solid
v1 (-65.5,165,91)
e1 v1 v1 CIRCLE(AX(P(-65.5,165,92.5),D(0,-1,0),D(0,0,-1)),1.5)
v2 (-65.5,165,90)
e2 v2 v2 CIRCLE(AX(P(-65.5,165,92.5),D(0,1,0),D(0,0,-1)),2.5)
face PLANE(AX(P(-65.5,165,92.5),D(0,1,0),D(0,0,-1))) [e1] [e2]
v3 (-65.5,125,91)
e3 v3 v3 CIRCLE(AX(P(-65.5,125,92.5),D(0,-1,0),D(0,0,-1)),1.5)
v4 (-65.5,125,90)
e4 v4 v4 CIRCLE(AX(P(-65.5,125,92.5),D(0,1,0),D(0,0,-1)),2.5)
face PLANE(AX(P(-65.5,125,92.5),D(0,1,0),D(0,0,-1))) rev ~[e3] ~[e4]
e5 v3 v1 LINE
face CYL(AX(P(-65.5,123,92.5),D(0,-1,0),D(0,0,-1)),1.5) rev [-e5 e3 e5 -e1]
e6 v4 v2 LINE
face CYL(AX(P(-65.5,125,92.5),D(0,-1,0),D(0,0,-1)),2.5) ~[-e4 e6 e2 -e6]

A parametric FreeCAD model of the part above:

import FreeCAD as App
import Part
import Sketcher
from FreeCAD import Vector

doc = App.newDocument("Part")
body = doc.addObject("PartDesign::Body", "Body")

sketch1 = body.newObject("Sketcher::SketchObject", "Sketch")
sketch1.AttachmentSupport = (doc.getObject("XY_Plane"), [""])
sketch1.MapMode = "FlatFace"
sketch1.addGeometry(Part.Circle(Vector(0, 0, 0), Vector(0, 0, 1), 1.5), False)
sketch1.addConstraint(Sketcher.Constraint("Coincident", 0, 3, -1, 1))
sketch1.addConstraint(Sketcher.Constraint("Diameter", 0, 3.0))
pad1 = body.newObject("PartDesign::Pad", "Pad")
pad1.Profile = sketch1
pad1.Length = 44
body2 = doc.addObject("PartDesign::Body", "Body001")
doc.recompute()

body.Placement = App.Placement(Vector(0, 0, 0), App.Rotation(Vector(0, 1, 0), 90))
boolean = body2.newObject("PartDesign::Boolean", "Boolean")
boolean.Type = "Fuse"
boolean.addObjects([body])
body3 = doc.addObject("PartDesign::Body", "Body002")
doc.recompute()

body2.Placement = App.Placement(Vector(-2, 0, 0), App.Rotation(Vector(0, 0, 1), 0))
boolean2 = body3.newObject("PartDesign::Boolean", "Boolean001")
boolean2.Type = "Fuse"
boolean2.addObjects([body2])
body4 = doc.addObject("PartDesign::Body", "Body003")

sketch2 = body4.newObject("Sketcher::SketchObject", "Sketch001")
sketch2.AttachmentSupport = (doc.getObject("XY_Plane003"), [""])
sketch2.MapMode = "FlatFace"
sketch2.addGeometry(Part.Circle(Vector(0, 0, 0), Vector(0, 0, 1), 2.5), False)
sketch2.addConstraint(Sketcher.Constraint("Coincident", 0, 3, -1, 1))
sketch2.addConstraint(Sketcher.Constraint("Diameter", 0, 5.0))
pad2 = body4.newObject("PartDesign::Pad", "Pad001")
pad2.Profile = sketch2
pad2.Length = 40
body5 = doc.addObject("PartDesign::Body", "Body004")
doc.recompute()

body4.Placement = App.Placement(Vector(0, 0, 0), App.Rotation(Vector(0, 1, 0), 90))
boolean3 = body5.newObject("PartDesign::Boolean", "Boolean002")
boolean3.Type = "Fuse"
boolean3.addObjects([body4])
doc.recompute()

boolean4 = body5.newObject("PartDesign::Boolean", "Boolean003")
boolean4.Type = "Cut"
boolean4.addObjects([body3])
body6 = doc.addObject("PartDesign::Body", "Body005")
doc.recompute()

body5.Placement = App.Placement(Vector(-65.5, 125, 92.5), App.Rotation(Vector(0, 0, 1), 90))
boolean5 = body6.newObject("PartDesign::Boolean", "Boolean004")
boolean5.Type = "Fuse"
boolean5.addObjects([body5])

doc.recompute()
